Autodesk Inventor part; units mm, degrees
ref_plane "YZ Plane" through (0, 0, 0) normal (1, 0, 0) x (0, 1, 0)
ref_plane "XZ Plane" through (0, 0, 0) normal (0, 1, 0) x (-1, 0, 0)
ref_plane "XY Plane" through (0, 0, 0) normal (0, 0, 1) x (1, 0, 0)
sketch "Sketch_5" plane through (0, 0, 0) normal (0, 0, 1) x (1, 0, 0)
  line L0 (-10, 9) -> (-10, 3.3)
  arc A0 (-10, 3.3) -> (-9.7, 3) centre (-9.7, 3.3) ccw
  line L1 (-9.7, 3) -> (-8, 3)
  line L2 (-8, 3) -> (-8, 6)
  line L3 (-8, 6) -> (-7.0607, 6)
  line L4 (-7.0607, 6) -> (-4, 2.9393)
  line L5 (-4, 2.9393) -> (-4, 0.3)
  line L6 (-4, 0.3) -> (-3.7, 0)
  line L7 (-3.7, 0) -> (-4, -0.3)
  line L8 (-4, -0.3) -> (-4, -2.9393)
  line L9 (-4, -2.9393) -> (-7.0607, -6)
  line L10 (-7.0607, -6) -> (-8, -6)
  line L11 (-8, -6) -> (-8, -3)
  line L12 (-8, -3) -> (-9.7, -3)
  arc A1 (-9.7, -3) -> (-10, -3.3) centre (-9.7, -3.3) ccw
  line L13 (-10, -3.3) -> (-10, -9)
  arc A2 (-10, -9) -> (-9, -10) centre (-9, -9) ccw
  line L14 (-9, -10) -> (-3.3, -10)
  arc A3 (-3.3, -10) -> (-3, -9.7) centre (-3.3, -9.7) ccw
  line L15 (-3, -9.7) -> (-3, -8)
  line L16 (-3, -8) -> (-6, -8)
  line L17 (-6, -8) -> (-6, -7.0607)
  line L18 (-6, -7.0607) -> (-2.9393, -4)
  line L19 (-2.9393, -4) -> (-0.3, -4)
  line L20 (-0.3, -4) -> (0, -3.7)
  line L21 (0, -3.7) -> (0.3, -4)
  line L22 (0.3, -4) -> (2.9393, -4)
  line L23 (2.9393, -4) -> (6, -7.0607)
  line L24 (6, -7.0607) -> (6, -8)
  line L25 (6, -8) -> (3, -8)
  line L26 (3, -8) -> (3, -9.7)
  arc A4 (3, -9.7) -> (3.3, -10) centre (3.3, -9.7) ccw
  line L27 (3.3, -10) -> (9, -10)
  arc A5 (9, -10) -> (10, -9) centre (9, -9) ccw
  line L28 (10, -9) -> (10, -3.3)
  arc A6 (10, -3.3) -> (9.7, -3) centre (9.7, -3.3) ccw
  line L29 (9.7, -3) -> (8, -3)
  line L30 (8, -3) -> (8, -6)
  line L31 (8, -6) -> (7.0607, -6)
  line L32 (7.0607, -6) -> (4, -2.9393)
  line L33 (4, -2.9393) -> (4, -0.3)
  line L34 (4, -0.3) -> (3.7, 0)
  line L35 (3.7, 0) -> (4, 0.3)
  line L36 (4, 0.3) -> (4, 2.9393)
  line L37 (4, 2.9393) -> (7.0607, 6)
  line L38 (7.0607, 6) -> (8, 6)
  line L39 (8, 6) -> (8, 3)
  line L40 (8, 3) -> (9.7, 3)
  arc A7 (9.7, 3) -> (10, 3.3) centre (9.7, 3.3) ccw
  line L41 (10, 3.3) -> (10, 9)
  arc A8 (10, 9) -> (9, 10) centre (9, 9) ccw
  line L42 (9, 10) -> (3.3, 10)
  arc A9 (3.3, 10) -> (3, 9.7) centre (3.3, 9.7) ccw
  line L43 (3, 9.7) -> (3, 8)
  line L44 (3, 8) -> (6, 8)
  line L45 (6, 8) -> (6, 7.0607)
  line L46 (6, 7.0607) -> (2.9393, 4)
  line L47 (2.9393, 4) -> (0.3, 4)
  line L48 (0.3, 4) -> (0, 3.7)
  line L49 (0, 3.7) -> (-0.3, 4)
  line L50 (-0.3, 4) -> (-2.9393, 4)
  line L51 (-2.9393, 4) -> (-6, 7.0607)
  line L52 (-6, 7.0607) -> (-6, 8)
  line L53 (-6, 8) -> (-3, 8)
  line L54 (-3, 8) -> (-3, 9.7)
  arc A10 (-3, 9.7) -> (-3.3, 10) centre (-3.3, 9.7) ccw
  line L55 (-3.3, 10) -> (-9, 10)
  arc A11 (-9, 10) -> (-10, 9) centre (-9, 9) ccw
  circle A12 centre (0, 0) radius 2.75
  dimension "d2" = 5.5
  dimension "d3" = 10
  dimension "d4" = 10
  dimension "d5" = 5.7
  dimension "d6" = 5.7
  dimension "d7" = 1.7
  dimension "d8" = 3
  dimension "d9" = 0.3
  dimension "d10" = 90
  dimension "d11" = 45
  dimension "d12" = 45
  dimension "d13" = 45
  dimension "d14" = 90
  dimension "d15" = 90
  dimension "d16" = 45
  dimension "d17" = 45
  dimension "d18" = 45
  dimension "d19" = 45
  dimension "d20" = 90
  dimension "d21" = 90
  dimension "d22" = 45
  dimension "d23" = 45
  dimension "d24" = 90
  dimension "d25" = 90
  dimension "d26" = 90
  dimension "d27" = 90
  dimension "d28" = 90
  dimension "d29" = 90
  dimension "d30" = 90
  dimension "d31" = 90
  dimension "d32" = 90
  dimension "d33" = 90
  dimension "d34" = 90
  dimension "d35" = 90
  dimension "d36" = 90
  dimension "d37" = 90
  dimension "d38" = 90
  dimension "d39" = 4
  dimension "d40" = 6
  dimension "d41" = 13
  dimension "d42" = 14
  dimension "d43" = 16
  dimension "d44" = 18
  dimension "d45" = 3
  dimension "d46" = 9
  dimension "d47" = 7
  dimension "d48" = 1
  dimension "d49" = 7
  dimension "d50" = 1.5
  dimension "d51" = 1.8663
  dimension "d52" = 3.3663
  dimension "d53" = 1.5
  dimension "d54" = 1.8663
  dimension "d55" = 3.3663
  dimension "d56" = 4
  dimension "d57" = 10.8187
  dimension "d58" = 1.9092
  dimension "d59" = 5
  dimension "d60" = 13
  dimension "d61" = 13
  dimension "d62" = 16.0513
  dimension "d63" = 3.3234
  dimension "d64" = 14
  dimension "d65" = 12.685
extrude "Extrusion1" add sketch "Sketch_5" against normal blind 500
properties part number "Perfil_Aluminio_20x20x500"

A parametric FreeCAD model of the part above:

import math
import FreeCAD as App
import Part
import Sketcher

V = App.Vector
Q = App.Units.Quantity

doc = App.newDocument("Part")
body = doc.addObject("PartDesign::Body", "Body")

sketch1 = doc.addObject("Sketcher::SketchObject", "Sketch")
body.addObject(sketch1)
sketch1.AttachmentSupport = (doc.XY_Plane, [""])
sketch1.MapMode = "FlatFace"
sketch1.addGeometry(Part.ArcOfCircle(Part.Circle(V(-9, 9, 0), V(0, 0, 1), 1), math.radians(90), math.radians(180)), False)
sketch1.addGeometry(Part.LineSegment(V(-10, 9, 0), V(-10, 3.3, 0)), False)
sketch1.addGeometry(Part.ArcOfCircle(Part.Circle(V(-9.7, 3.3, 0), V(0, 0, 1), 0.3), math.radians(180), math.radians(270)), False)
sketch1.addGeometry(Part.LineSegment(V(-9.7, 3, 0), V(-8, 3, 0)), False)
sketch1.addGeometry(Part.LineSegment(V(-8, 3, 0), V(-8, 6, 0)), False)
sketch1.addGeometry(Part.LineSegment(V(-8, 6, 0), V(-7.06, 6, 0)), False)
sketch1.addGeometry(Part.LineSegment(V(-7.06, 6, 0), V(-4, 2.94, 0)), False)
sketch1.addGeometry(Part.LineSegment(V(-4, 2.94, 0), V(-4, 0.3, 0)), False)
sketch1.addGeometry(Part.LineSegment(V(-4, 0.3, 0), V(-3.7, 0, 0)), False)
sketch1.addGeometry(Part.LineSegment(V(-3.7, 0, 0), V(-4, -0.3, 0)), False)
sketch1.addGeometry(Part.LineSegment(V(-4, -0.3, 0), V(-4, -2.94, 0)), False)
sketch1.addGeometry(Part.LineSegment(V(-4, -2.94, 0), V(-7.06, -6, 0)), False)
sketch1.addGeometry(Part.LineSegment(V(-7.06, -6, 0), V(-8, -6, 0)), False)
sketch1.addGeometry(Part.LineSegment(V(-8, -6, 0), V(-8, -3, 0)), False)
sketch1.addGeometry(Part.LineSegment(V(-8, -3, 0), V(-9.7, -3, 0)), False)
sketch1.addGeometry(Part.ArcOfCircle(Part.Circle(V(-9.7, -3.3, 0), V(0, 0, 1), 0.3), math.radians(90), math.radians(180)), False)
sketch1.addGeometry(Part.LineSegment(V(-10, -3.3, 0), V(-10, -9, 0)), False)
sketch1.addGeometry(Part.ArcOfCircle(Part.Circle(V(-9, -9, 0), V(0, 0, 1), 1), math.radians(180), math.radians(270)), False)
sketch1.addGeometry(Part.LineSegment(V(-9, -10, 0), V(-3.3, -10, 0)), False)
sketch1.addGeometry(Part.ArcOfCircle(Part.Circle(V(-3.3, -9.7, 0), V(0, 0, 1), 0.3), math.radians(-90), math.radians(0)), False)
sketch1.addGeometry(Part.LineSegment(V(-3, -9.7, 0), V(-3, -8, 0)), False)
sketch1.addGeometry(Part.LineSegment(V(-3, -8, 0), V(-6, -8, 0)), False)
sketch1.addGeometry(Part.LineSegment(V(-6, -8, 0), V(-6, -7.06, 0)), False)
sketch1.addGeometry(Part.LineSegment(V(-6, -7.06, 0), V(-2.94, -4, 0)), False)
sketch1.addGeometry(Part.LineSegment(V(-2.94, -4, 0), V(-0.3, -4, 0)), False)
sketch1.addGeometry(Part.LineSegment(V(-0.3, -4, 0), V(0, -3.7, 0)), False)
sketch1.addGeometry(Part.LineSegment(V(0, -3.7, 0), V(0.3, -4, 0)), False)
sketch1.addGeometry(Part.LineSegment(V(0.3, -4, 0), V(2.94, -4, 0)), False)
sketch1.addGeometry(Part.LineSegment(V(2.94, -4, 0), V(6, -7.06, 0)), False)
sketch1.addGeometry(Part.LineSegment(V(6, -7.06, 0), V(6, -8, 0)), False)
sketch1.addGeometry(Part.LineSegment(V(6, -8, 0), V(3, -8, 0)), False)
sketch1.addGeometry(Part.LineSegment(V(3, -8, 0), V(3, -9.7, 0)), False)
sketch1.addGeometry(Part.ArcOfCircle(Part.Circle(V(3.3, -9.7, 0), V(0, 0, 1), 0.3), math.radians(180), math.radians(270)), False)
sketch1.addGeometry(Part.LineSegment(V(3.3, -10, 0), V(9, -10, 0)), False)
sketch1.addGeometry(Part.ArcOfCircle(Part.Circle(V(9, -9, 0), V(0, 0, 1), 1), math.radians(-90), math.radians(0)), False)
sketch1.addGeometry(Part.LineSegment(V(10, -9, 0), V(10, -3.3, 0)), False)
sketch1.addGeometry(Part.ArcOfCircle(Part.Circle(V(9.7, -3.3, 0), V(0, 0, 1), 0.3), math.radians(0), math.radians(90)), False)
sketch1.addGeometry(Part.LineSegment(V(9.7, -3, 0), V(8, -3, 0)), False)
sketch1.addGeometry(Part.LineSegment(V(8, -3, 0), V(8, -6, 0)), False)
sketch1.addGeometry(Part.LineSegment(V(8, -6, 0), V(7.06, -6, 0)), False)
sketch1.addGeometry(Part.LineSegment(V(7.06, -6, 0), V(4, -2.94, 0)), False)
sketch1.addGeometry(Part.LineSegment(V(4, -2.94, 0), V(4, -0.3, 0)), False)
sketch1.addGeometry(Part.LineSegment(V(4, -0.3, 0), V(3.7, 0, 0)), False)
sketch1.addGeometry(Part.LineSegment(V(3.7, 0, 0), V(4, 0.3, 0)), False)
sketch1.addGeometry(Part.LineSegment(V(4, 0.3, 0), V(4, 2.94, 0)), False)
sketch1.addGeometry(Part.LineSegment(V(4, 2.94, 0), V(7.06, 6, 0)), False)
sketch1.addGeometry(Part.LineSegment(V(7.06, 6, 0), V(8, 6, 0)), False)
sketch1.addGeometry(Part.LineSegment(V(8, 6, 0), V(8, 3, 0)), False)
sketch1.addGeometry(Part.LineSegment(V(8, 3, 0), V(9.7, 3, 0)), False)
sketch1.addGeometry(Part.ArcOfCircle(Part.Circle(V(9.7, 3.3, 0), V(0, 0, 1), 0.3), math.radians(-90), math.radians(0)), False)
sketch1.addGeometry(Part.LineSegment(V(10, 3.3, 0), V(10, 9, 0)), False)
sketch1.addGeometry(Part.ArcOfCircle(Part.Circle(V(9, 9, 0), V(0, 0, 1), 1), math.radians(0), math.radians(90)), False)
sketch1.addGeometry(Part.LineSegment(V(9, 10, 0), V(3.3, 10, 0)), False)
sketch1.addGeometry(Part.ArcOfCircle(Part.Circle(V(3.3, 9.7, 0), V(0, 0, 1), 0.3), math.radians(90), math.radians(180)), False)
sketch1.addGeometry(Part.LineSegment(V(3, 9.7, 0), V(3, 8, 0)), False)
sketch1.addGeometry(Part.LineSegment(V(3, 8, 0), V(6, 8, 0)), False)
sketch1.addGeometry(Part.LineSegment(V(6, 8, 0), V(6, 7.06, 0)), False)
sketch1.addGeometry(Part.LineSegment(V(6, 7.06, 0), V(2.94, 4, 0)), False)
sketch1.addGeometry(Part.LineSegment(V(2.94, 4, 0), V(0.3, 4, 0)), False)
sketch1.addGeometry(Part.LineSegment(V(0.3, 4, 0), V(0, 3.7, 0)), False)
sketch1.addGeometry(Part.LineSegment(V(0, 3.7, 0), V(-0.3, 4, 0)), False)
sketch1.addGeometry(Part.LineSegment(V(-0.3, 4, 0), V(-2.94, 4, 0)), False)
sketch1.addGeometry(Part.LineSegment(V(-2.94, 4, 0), V(-6, 7.06, 0)), False)
sketch1.addGeometry(Part.LineSegment(V(-6, 7.06, 0), V(-6, 8, 0)), False)
sketch1.addGeometry(Part.LineSegment(V(-6, 8, 0), V(-3, 8, 0)), False)
sketch1.addGeometry(Part.LineSegment(V(-3, 8, 0), V(-3, 9.7, 0)), False)
sketch1.addGeometry(Part.ArcOfCircle(Part.Circle(V(-3.3, 9.7, 0), V(0, 0, 1), 0.3), math.radians(0), math.radians(90)), False)
sketch1.addGeometry(Part.LineSegment(V(-3.3, 10, 0), V(-9, 10, 0)), False)
sketch1.addGeometry(Part.Circle(V(0, 0, 0), V(0, 0, 1), 2.75), False)
sketch1.addConstraint(Sketcher.Constraint("Tangent", 0, 2, 1, 1))
sketch1.addConstraint(Sketcher.Constraint("Tangent", 1, 2, 2, 1))
sketch1.addConstraint(Sketcher.Constraint("Tangent", 2, 2, 3, 1))
sketch1.addConstraint(Sketcher.Constraint("Coincident", 3, 2, 4, 1))
sketch1.addConstraint(Sketcher.Constraint("Coincident", 4, 2, 5, 1))
sketch1.addConstraint(Sketcher.Constraint("Coincident", 5, 2, 6, 1))
sketch1.addConstraint(Sketcher.Constraint("Coincident", 6, 2, 7, 1))
sketch1.addConstraint(Sketcher.Constraint("Coincident", 7, 2, 8, 1))
sketch1.addConstraint(Sketcher.Constraint("Coincident", 8, 2, 9, 1))
sketch1.addConstraint(Sketcher.Constraint("Coincident", 9, 2, 10, 1))
sketch1.addConstraint(Sketcher.Constraint("Coincident", 10, 2, 11, 1))
sketch1.addConstraint(Sketcher.Constraint("Coincident", 11, 2, 12, 1))
sketch1.addConstraint(Sketcher.Constraint("Coincident", 12, 2, 13, 1))
sketch1.addConstraint(Sketcher.Constraint("Coincident", 13, 2, 14, 1))
sketch1.addConstraint(Sketcher.Constraint("Tangent", 14, 2, 15, 1))
sketch1.addConstraint(Sketcher.Constraint("Tangent", 15, 2, 16, 1))
sketch1.addConstraint(Sketcher.Constraint("Tangent", 16, 2, 17, 1))
sketch1.addConstraint(Sketcher.Constraint("Tangent", 17, 2, 18, 1))
sketch1.addConstraint(Sketcher.Constraint("Tangent", 18, 2, 19, 1))
sketch1.addConstraint(Sketcher.Constraint("Tangent", 19, 2, 20, 1))
sketch1.addConstraint(Sketcher.Constraint("Coincident", 20, 2, 21, 1))
sketch1.addConstraint(Sketcher.Constraint("Coincident", 21, 2, 22, 1))
sketch1.addConstraint(Sketcher.Constraint("Coincident", 22, 2, 23, 1))
sketch1.addConstraint(Sketcher.Constraint("Coincident", 23, 2, 24, 1))
sketch1.addConstraint(Sketcher.Constraint("Coincident", 24, 2, 25, 1))
sketch1.addConstraint(Sketcher.Constraint("Coincident", 25, 2, 26, 1))
sketch1.addConstraint(Sketcher.Constraint("Coincident", 26, 2, 27, 1))
sketch1.addConstraint(Sketcher.Constraint("Coincident", 27, 2, 28, 1))
sketch1.addConstraint(Sketcher.Constraint("Coincident", 28, 2, 29, 1))
sketch1.addConstraint(Sketcher.Constraint("Coincident", 29, 2, 30, 1))
sketch1.addConstraint(Sketcher.Constraint("Coincident", 30, 2, 31, 1))
sketch1.addConstraint(Sketcher.Constraint("Tangent", 31, 2, 32, 1))
sketch1.addConstraint(Sketcher.Constraint("Tangent", 32, 2, 33, 1))
sketch1.addConstraint(Sketcher.Constraint("Tangent", 33, 2, 34, 1))
sketch1.addConstraint(Sketcher.Constraint("Tangent", 34, 2, 35, 1))
sketch1.addConstraint(Sketcher.Constraint("Tangent", 35, 2, 36, 1))
sketch1.addConstraint(Sketcher.Constraint("Tangent", 36, 2, 37, 1))
sketch1.addConstraint(Sketcher.Constraint("Coincident", 37, 2, 38, 1))
sketch1.addConstraint(Sketcher.Constraint("Coincident", 38, 2, 39, 1))
sketch1.addConstraint(Sketcher.Constraint("Coincident", 39, 2, 40, 1))
sketch1.addConstraint(Sketcher.Constraint("Coincident", 40, 2, 41, 1))
sketch1.addConstraint(Sketcher.Constraint("Coincident", 41, 2, 42, 1))
sketch1.addConstraint(Sketcher.Constraint("Coincident", 42, 2, 43, 1))
sketch1.addConstraint(Sketcher.Constraint("Coincident", 43, 2, 44, 1))
sketch1.addConstraint(Sketcher.Constraint("Coincident", 44, 2, 45, 1))
sketch1.addConstraint(Sketcher.Constraint("Coincident", 45, 2, 46, 1))
sketch1.addConstraint(Sketcher.Constraint("Coincident", 46, 2, 47, 1))
sketch1.addConstraint(Sketcher.Constraint("Coincident", 47, 2, 48, 1))
sketch1.addConstraint(Sketcher.Constraint("Tangent", 48, 2, 49, 1))
sketch1.addConstraint(Sketcher.Constraint("Tangent", 49, 2, 50, 1))
sketch1.addConstraint(Sketcher.Constraint("Tangent", 50, 2, 51, 1))
sketch1.addConstraint(Sketcher.Constraint("Tangent", 51, 2, 52, 1))
sketch1.addConstraint(Sketcher.Constraint("Tangent", 52, 2, 53, 1))
sketch1.addConstraint(Sketcher.Constraint("Tangent", 53, 2, 54, 1))
sketch1.addConstraint(Sketcher.Constraint("Coincident", 54, 2, 55, 1))
sketch1.addConstraint(Sketcher.Constraint("Coincident", 55, 2, 56, 1))
sketch1.addConstraint(Sketcher.Constraint("Coincident", 56, 2, 57, 1))
sketch1.addConstraint(Sketcher.Constraint("Coincident", 57, 2, 58, 1))
sketch1.addConstraint(Sketcher.Constraint("Coincident", 58, 2, 59, 1))
sketch1.addConstraint(Sketcher.Constraint("Coincident", 59, 2, 60, 1))
sketch1.addConstraint(Sketcher.Constraint("Coincident", 60, 2, 61, 1))
sketch1.addConstraint(Sketcher.Constraint("Coincident", 61, 2, 62, 1))
sketch1.addConstraint(Sketcher.Constraint("Coincident", 62, 2, 63, 1))
sketch1.addConstraint(Sketcher.Constraint("Coincident", 63, 2, 64, 1))
sketch1.addConstraint(Sketcher.Constraint("Coincident", 64, 2, 65, 1))
sketch1.addConstraint(Sketcher.Constraint("Tangent", 65, 2, 66, 1))
sketch1.addConstraint(Sketcher.Constraint("Tangent", 66, 2, 67, 1))
sketch1.addConstraint(Sketcher.Constraint("Tangent", 67, 2, 0, 1))
sketch1.addConstraint(Sketcher.Constraint("Vertical", 1))
sketch1.addConstraint(Sketcher.Constraint("Horizontal", 3))
sketch1.addConstraint(Sketcher.Constraint("Vertical", 4))
sketch1.addConstraint(Sketcher.Constraint("Horizontal", 5))
sketch1.addConstraint(Sketcher.Constraint("Vertical", 7))
sketch1.addConstraint(Sketcher.Constraint("Vertical", 10))
sketch1.addConstraint(Sketcher.Constraint("Horizontal", 12))
sketch1.addConstraint(Sketcher.Constraint("Vertical", 13))
sketch1.addConstraint(Sketcher.Constraint("Horizontal", 14))
sketch1.addConstraint(Sketcher.Constraint("Vertical", 16))
sketch1.addConstraint(Sketcher.Constraint("Horizontal", 18))
sketch1.addConstraint(Sketcher.Constraint("Vertical", 20))
sketch1.addConstraint(Sketcher.Constraint("Horizontal", 21))
sketch1.addConstraint(Sketcher.Constraint("Vertical", 22))
sketch1.addConstraint(Sketcher.Constraint("Horizontal", 24))
sketch1.addConstraint(Sketcher.Constraint("Horizontal", 27))
sketch1.addConstraint(Sketcher.Constraint("Vertical", 29))
sketch1.addConstraint(Sketcher.Constraint("Horizontal", 30))
sketch1.addConstraint(Sketcher.Constraint("Vertical", 31))
sketch1.addConstraint(Sketcher.Constraint("Horizontal", 33))
sketch1.addConstraint(Sketcher.Constraint("Vertical", 35))
sketch1.addConstraint(Sketcher.Constraint("Horizontal", 37))
sketch1.addConstraint(Sketcher.Constraint("Vertical", 38))
sketch1.addConstraint(Sketcher.Constraint("Horizontal", 39))
sketch1.addConstraint(Sketcher.Constraint("Vertical", 41))
sketch1.addConstraint(Sketcher.Constraint("Vertical", 44))
sketch1.addConstraint(Sketcher.Constraint("Horizontal", 46))
sketch1.addConstraint(Sketcher.Constraint("Vertical", 47))
sketch1.addConstraint(Sketcher.Constraint("Horizontal", 48))
sketch1.addConstraint(Sketcher.Constraint("Vertical", 50))
sketch1.addConstraint(Sketcher.Constraint("Horizontal", 52))
sketch1.addConstraint(Sketcher.Constraint("Vertical", 54))
sketch1.addConstraint(Sketcher.Constraint("Horizontal", 55))
sketch1.addConstraint(Sketcher.Constraint("Vertical", 56))
sketch1.addConstraint(Sketcher.Constraint("Horizontal", 58))
sketch1.addConstraint(Sketcher.Constraint("Horizontal", 61))
sketch1.addConstraint(Sketcher.Constraint("Vertical", 63))
sketch1.addConstraint(Sketcher.Constraint("Horizontal", 64))
sketch1.addConstraint(Sketcher.Constraint("Vertical", 65))
sketch1.addConstraint(Sketcher.Constraint("Horizontal", 67))
sketch1.addConstraint(Sketcher.Constraint("Coincident", 68, 3, -1, 1))
sketch1.addConstraint(Sketcher.Constraint("Equal", 2, 15))
sketch1.addConstraint(Sketcher.Constraint("Equal", 0, 17))
sketch1.addConstraint(Sketcher.Constraint("Equal", 15, 19))
sketch1.addConstraint(Sketcher.Constraint("Equal", 19, 32))
sketch1.addConstraint(Sketcher.Constraint("Equal", 17, 34))
sketch1.addConstraint(Sketcher.Constraint("Equal", 32, 36))
sketch1.addConstraint(Sketcher.Constraint("Equal", 36, 49))
sketch1.addConstraint(Sketcher.Constraint("Equal", 34, 51))
sketch1.addConstraint(Sketcher.Constraint("Equal", 49, 53))
sketch1.addConstraint(Sketcher.Constraint("Equal", 53, 66))
sketch1.addConstraint(Sketcher.Constraint("Symmetric", 0, 3, 34, 3, -1, 1))
sketch1.addConstraint(Sketcher.Constraint("Symmetric", 15, 3, 49, 3, -1, 1))
sketch1.addConstraint(Sketcher.Constraint("Symmetric", 19, 3, 53, 3, -1, 1))
sketch1.addConstraint(Sketcher.Constraint("Symmetric", 3, 2, 37, 2, -1, 1))
sketch1.addConstraint(Sketcher.Constraint("Symmetric", 5, 2, 39, 2, -1, 1))
sketch1.addConstraint(Sketcher.Constraint("Symmetric", 6, 2, 40, 2, -1, 1))
sketch1.addConstraint(Sketcher.Constraint("Symmetric", 8, 2, 42, 2, -1, 1))
sketch1.addConstraint(Sketcher.Constraint("Symmetric", 9, 2, 43, 2, -1, 1))
sketch1.addConstraint(Sketcher.Constraint("Symmetric", 11, 2, 45, 2, -1, 1))
sketch1.addConstraint(Sketcher.Constraint("Symmetric", 21, 2, 55, 2, -1, 1))
sketch1.addConstraint(Sketcher.Constraint("Symmetric", 23, 2, 57, 2, -1, 1))
sketch1.addConstraint(Sketcher.Constraint("Symmetric", 25, 2, 59, 2, -1, 1))
sketch1.addConstraint(Sketcher.Constraint("Symmetric", 26, 2, 60, 2, -1, 1))
sketch1.addConstraint(Sketcher.Constraint("Symmetric", 28, 2, 62, 2, -1, 1))
sketch1.addConstraint(Sketcher.Constraint("Symmetric", 30, 2, 64, 2, -1, 1))
sketch1.addConstraint(Sketcher.Constraint("Symmetric", 19, 3, 32, 3, -2))
sketch1.addConstraint(Sketcher.Constraint("Symmetric", 15, 3, 36, 3, -2))
sketch1.addConstraint(Sketcher.Constraint("Symmetric", 24, 2, 26, 2, -2))
sketch1.addConstraint(Sketcher.Constraint("Symmetric", 22, 2, 28, 2, -2))
sketch1.addConstraint(Sketcher.Constraint("Symmetric", 12, 2, 38, 2, -2))
sketch1.addConstraint(Sketcher.Constraint("Symmetric", 10, 2, 40, 2, -2))
sketch1.addConstraint(Sketcher.Constraint("PointOnObject", 8, 2, -1))
sketch1.addConstraint(Sketcher.Constraint("PointOnObject", 25, 2, -2))
sketch1.addConstraint(Sketcher.Constraint("Parallel", 6, 8))
sketch1.addConstraint(Sketcher.Constraint("Perpendicular", 8, 9))
sketch1.addConstraint(Sketcher.Constraint("Parallel", 9, 11))
sketch1.addConstraint(Sketcher.Constraint("Parallel", 11, 23))
sketch1.addConstraint(Sketcher.Constraint("Parallel", 23, 25))
sketch1.addConstraint(Sketcher.Constraint("Perpendicular", 25, 26))
sketch1.addConstraint(Sketcher.Constraint("Parallel", 26, 28))
sketch1.addConstraint(Sketcher.Constraint("Parallel", 40, 42))
sketch1.addConstraint(Sketcher.Constraint("Parallel", 43, 45))
sketch1.addConstraint(Sketcher.Constraint("Parallel", 45, 57))
sketch1.addConstraint(Sketcher.Constraint("Parallel", 57, 59))
sketch1.addConstraint(Sketcher.Constraint("Parallel", 60, 62))
sketch1.addConstraint(Sketcher.Constraint("Horizontal", 21, 2, 29, 2))
sketch1.addConstraint(Sketcher.Constraint("Vertical", 38, 2, 46, 2))
sketch1.addConstraint(Sketcher.Constraint("Equal", 67, 1))
sketch1.addConstraint(Sketcher.Constraint("Equal", 64, 4))
sketch1.addConstraint(Sketcher.Constraint("Equal", 61, 7))
sketch1.addConstraint(Sketcher.Constraint("Equal", 48, 20))
sketch1.addConstraint(Sketcher.Constraint("Equal", 46, 22))
sketch1.addConstraint(Sketcher.Constraint("Equal", 11, 23))
sketch1.addConstraint(Sketcher.Constraint("Equal", 9, 25))
sketch1.addConstraint(Sketcher.Constraint("Radius", 0, Q("1 mm")))
sketch1.addConstraint(Sketcher.Constraint("Diameter", 68, Q("5.5 mm")))
sketch1.addConstraint(Sketcher.Constraint("Radius", 2, Q("0.3 mm")))
sketch1.addConstraint(Sketcher.Constraint("DistanceX", 21, 2, 21, 1, Q("3 mm")))
sketch1.addConstraint(Sketcher.Constraint("DistanceX", 3, 1, 3, 2, Q("1.7 mm")))
sketch1.addConstraint(Sketcher.Constraint("DistanceX", 18, 1, 18, 2, Q("5.7 mm")))
sketch1.addConstraint(Sketcher.Constraint("DistanceX", 0, 3, -1, 1, Q("9 mm")))
sketch1.addConstraint(Sketcher.Constraint("DistanceX", 6, 2, -1, 1, Q("4 mm")))
sketch1.addConstraint(Sketcher.Constraint("DistanceY", -1, 1, 7, 2, Q("0.3 mm")))
sketch1.addConstraint(Sketcher.Constraint("DistanceX", 5, 1, 5, 2, Q("0.9393 mm")))
pad1 = doc.addObject("PartDesign::Pad", "Pad")
body.addObject(pad1)
pad1.Profile = sketch1
pad1.Length = 500
pad1.Reversed = True

doc.recompute()
